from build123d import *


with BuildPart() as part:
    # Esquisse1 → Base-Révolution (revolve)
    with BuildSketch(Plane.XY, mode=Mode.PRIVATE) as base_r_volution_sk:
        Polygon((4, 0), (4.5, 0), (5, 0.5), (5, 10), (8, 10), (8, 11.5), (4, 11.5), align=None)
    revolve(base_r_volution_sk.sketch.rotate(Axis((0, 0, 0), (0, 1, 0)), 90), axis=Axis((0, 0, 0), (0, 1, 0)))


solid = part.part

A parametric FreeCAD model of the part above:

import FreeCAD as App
import Part
import Sketcher

V = App.Vector
Q = App.Units.Quantity


def add_polygon(sketch, points):
    """Adds a closed chain of lines whose ends are joined by coincident constraints."""
    first, n = sketch.GeometryCount, len(points)
    for a, b in zip(points, points[1:] + points[:1]):
        sketch.addGeometry(Part.LineSegment(App.Vector(*a, 0), App.Vector(*b, 0)), False)
    for i in range(n):
        sketch.addConstraint(Sketcher.Constraint("Coincident", first + i, 2, first + (i + 1) % n, 1))

doc = App.newDocument("Part")
params = doc.addObject("Spreadsheet::Sheet", "Params")
for row, (alias, value) in enumerate([
    ("sketch1_width", "3 mm"),
    ("sketch1_width2", "4 mm"),
    ("sketch1_width3", "0.5 mm"),
    ("sketch1_height", "9.5 mm"),
    ("sketch1_height2", "1.5 mm"),
    ("revolution_angle", "360 deg"),
], start=1):
    params.set(f"A{row}", alias)
    params.set(f"B{row}", "=" + value)
    params.setAlias(f"B{row}", alias)

body = doc.addObject("PartDesign::Body", "Body")

sketch1 = body.newObject("Sketcher::SketchObject", "Sketch")
sketch1.AttachmentSupport = (doc.getObject("XY_Plane"), [""])
sketch1.MapMode = "FlatFace"
add_polygon(sketch1, [(4, 0), (4.5, 0), (5, 0.5), (5, 10), (8, 10), (8, 11.5), (4, 11.5)])
sketch1.addConstraint([
    Sketcher.Constraint("Horizontal", 0),
    Sketcher.Constraint("Vertical", 2),
    Sketcher.Constraint("Horizontal", 3),
    Sketcher.Constraint("Vertical", 4),
    Sketcher.Constraint("Horizontal", 5),
    Sketcher.Constraint("Vertical", 6),
    Sketcher.Constraint("PointOnObject", 0, 2, -1),
    Sketcher.Constraint("DistanceX", 3, 1, 3, 2, 3.0),
    Sketcher.Constraint("DistanceX", 5, 2, 5, 1, 4.0),
    Sketcher.Constraint("Angle", 1, Q("45 deg")),
    Sketcher.Constraint("DistanceX", 0, 1, 0, 2, 0.5),
    Sketcher.Constraint("DistanceY", 2, 1, 2, 2, 9.5),
    Sketcher.Constraint("DistanceY", 4, 1, 4, 2, 1.5),
    Sketcher.Constraint("DistanceX", -1, 1, 1, 2, 5.0),
])
sketch1.setExpression("Constraints[14]", "Params.sketch1_width")
sketch1.setExpression("Constraints[15]", "Params.sketch1_width2")
sketch1.setExpression("Constraints[17]", "Params.sketch1_width3")
sketch1.setExpression("Constraints[18]", "Params.sketch1_height")
sketch1.setExpression("Constraints[19]", "Params.sketch1_height2")
revolution = body.newObject("PartDesign::Revolution", "Revolution")
revolution.Profile = sketch1
revolution.ReferenceAxis = (sketch1, ["V_Axis"])
revolution.setExpression("Angle", "Params.revolution_angle")

doc.recompute()
